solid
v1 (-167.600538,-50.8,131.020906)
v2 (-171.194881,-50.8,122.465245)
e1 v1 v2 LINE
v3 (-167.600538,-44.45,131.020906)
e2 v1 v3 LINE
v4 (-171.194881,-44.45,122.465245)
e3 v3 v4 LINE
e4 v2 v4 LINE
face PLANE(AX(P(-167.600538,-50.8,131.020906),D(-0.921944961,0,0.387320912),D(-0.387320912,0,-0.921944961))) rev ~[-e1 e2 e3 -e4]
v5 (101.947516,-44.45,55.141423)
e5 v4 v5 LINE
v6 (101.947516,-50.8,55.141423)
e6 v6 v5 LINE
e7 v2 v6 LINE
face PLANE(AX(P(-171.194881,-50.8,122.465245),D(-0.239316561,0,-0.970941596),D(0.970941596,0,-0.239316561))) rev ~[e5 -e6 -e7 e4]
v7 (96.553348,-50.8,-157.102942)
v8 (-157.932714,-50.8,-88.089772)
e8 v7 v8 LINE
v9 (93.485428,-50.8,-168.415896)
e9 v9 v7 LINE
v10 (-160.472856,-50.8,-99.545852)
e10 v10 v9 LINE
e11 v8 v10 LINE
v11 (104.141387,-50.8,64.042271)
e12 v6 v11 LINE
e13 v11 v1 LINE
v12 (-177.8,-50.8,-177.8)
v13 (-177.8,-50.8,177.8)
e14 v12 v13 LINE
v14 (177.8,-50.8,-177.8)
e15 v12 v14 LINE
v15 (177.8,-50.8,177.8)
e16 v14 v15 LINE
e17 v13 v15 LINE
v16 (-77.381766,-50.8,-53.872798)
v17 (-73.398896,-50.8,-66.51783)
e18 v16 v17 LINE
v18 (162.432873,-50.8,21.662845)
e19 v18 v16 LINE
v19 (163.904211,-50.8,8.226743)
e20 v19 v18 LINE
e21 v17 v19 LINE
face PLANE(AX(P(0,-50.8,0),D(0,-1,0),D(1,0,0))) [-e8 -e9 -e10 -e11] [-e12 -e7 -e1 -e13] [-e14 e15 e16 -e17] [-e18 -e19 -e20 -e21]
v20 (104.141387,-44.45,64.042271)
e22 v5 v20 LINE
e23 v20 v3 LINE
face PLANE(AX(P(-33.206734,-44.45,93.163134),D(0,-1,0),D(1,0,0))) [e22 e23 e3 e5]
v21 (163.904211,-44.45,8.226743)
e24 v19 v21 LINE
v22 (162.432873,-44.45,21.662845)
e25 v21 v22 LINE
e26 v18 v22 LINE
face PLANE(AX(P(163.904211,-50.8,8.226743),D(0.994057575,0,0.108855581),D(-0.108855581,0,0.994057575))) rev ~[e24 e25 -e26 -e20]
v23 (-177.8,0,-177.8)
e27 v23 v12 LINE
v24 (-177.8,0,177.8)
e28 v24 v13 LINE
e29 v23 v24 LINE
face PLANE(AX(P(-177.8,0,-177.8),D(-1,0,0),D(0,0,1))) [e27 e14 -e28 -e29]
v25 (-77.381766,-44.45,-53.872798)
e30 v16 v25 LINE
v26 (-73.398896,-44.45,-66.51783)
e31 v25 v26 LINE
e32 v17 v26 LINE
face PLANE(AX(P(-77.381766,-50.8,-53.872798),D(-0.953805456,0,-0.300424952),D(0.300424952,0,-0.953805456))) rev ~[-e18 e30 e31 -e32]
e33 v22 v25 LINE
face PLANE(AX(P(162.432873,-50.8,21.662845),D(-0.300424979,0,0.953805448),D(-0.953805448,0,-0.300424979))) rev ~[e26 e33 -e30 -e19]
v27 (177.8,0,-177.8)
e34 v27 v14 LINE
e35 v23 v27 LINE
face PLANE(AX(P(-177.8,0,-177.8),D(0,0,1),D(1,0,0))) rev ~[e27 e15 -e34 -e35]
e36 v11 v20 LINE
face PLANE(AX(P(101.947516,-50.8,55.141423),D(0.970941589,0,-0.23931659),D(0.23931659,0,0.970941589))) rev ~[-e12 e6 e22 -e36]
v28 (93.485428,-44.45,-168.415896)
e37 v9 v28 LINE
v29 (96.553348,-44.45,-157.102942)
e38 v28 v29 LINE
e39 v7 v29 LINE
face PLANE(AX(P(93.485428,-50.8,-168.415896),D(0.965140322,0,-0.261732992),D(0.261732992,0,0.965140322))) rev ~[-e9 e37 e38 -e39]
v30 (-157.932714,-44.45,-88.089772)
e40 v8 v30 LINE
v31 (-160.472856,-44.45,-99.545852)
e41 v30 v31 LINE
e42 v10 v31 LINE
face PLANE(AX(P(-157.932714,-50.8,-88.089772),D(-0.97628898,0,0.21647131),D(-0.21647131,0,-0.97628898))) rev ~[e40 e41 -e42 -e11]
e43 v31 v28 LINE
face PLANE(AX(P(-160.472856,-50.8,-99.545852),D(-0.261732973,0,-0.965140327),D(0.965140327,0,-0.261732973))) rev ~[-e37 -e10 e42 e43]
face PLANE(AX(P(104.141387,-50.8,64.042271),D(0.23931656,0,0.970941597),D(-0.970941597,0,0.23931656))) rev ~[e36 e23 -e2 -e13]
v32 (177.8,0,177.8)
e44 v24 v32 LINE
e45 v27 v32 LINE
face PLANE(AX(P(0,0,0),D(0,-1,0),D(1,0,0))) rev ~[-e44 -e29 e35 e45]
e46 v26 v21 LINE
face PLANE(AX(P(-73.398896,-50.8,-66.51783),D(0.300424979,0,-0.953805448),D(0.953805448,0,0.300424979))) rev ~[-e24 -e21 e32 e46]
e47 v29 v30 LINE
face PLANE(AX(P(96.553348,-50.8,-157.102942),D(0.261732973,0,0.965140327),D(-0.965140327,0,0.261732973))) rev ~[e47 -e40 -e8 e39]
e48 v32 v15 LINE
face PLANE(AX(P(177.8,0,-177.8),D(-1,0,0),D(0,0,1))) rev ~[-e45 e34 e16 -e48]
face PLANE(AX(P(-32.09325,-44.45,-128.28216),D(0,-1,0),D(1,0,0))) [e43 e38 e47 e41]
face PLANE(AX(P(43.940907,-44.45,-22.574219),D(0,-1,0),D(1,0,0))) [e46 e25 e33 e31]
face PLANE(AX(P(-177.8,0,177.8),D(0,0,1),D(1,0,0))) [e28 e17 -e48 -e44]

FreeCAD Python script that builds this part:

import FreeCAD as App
import Part
import Sketcher
Q = App.Units.Quantity

doc = App.newDocument("Part")
body = doc.addObject("PartDesign::Body", "Body")

# Sketch on XZ plane
sketch1 = body.newObject("Sketcher::SketchObject", "Sketch")
sketch1.AttachmentSupport = (doc.getObject("XZ_Plane"), [""])
sketch1.MapMode = "FlatFace"
sketch1.addGeometry([
    Part.LineSegment(App.Vector(-178, 178, 0), App.Vector(-178, -178, 0)),
    Part.LineSegment(App.Vector(-178, -178, 0), App.Vector(178, -178, 0)),
    Part.LineSegment(App.Vector(178, -178, 0), App.Vector(178, 178, 0)),
    Part.LineSegment(App.Vector(178, 178, 0), App.Vector(-178, 178, 0)),
], False)
sketch1.addConstraint([
    Sketcher.Constraint("Coincident", 0, 2, 1, 1),
    Sketcher.Constraint("Coincident", 1, 2, 2, 1),
    Sketcher.Constraint("Coincident", 2, 2, 3, 1),
    Sketcher.Constraint("Coincident", 3, 2, 0, 1),
    Sketcher.Constraint("Vertical", 0),
    Sketcher.Constraint("Horizontal", 1),
    Sketcher.Constraint("Vertical", 2),
    Sketcher.Constraint("Horizontal", 3),
    Sketcher.Constraint("Symmetric", 0, 2, 2, 2, -1, 1),
    Sketcher.Constraint("Equal", 3, 0),
    Sketcher.Constraint("DistanceX", 1, 1, 1, 2, Q("14 in")),
])
pad1 = body.newObject("PartDesign::Pad", "Pad")
pad1.Profile = sketch1
pad1.Length = Q("2 in")

# Sketch on XZ plane
sketch2 = body.newObject("Sketcher::SketchObject", "Sketch001")
sketch2.AttachmentSupport = (doc.getObject("XZ_Plane"), [""])
sketch2.MapMode = "FlatFace"
sketch2.AttachmentOffset = App.Placement(App.Vector(0, 0, 2 * 25.4), App.Rotation())
sketch2.addGeometry([
    Part.LineSegment(App.Vector(-168, 131, 0), App.Vector(-171, 122, 0)),  # 0
    Part.LineSegment(App.Vector(-171, 122, 0), App.Vector(102, 55, 0)),  # 1
    Part.LineSegment(App.Vector(102, 55, 0), App.Vector(104, 64, 0)),  # 2
    Part.LineSegment(App.Vector(104, 64, 0), App.Vector(-168, 131, 0)),  # 3
    Part.LineSegment(App.Vector(-77, -54, 0), App.Vector(-73, -67, 0)),  # 4
    Part.LineSegment(App.Vector(-73, -67, 0), App.Vector(164, 8, 0)),  # 5
    Part.LineSegment(App.Vector(164, 8, 0), App.Vector(162, 22, 0)),  # 6
    Part.LineSegment(App.Vector(162, 22, 0), App.Vector(-77, -54, 0)),  # 7
    Part.LineSegment(App.Vector(97, -157, 0), App.Vector(-158, -88, 0)),  # 8
    Part.LineSegment(App.Vector(-158, -88, 0), App.Vector(-160, -100, 0)),  # 9
    Part.LineSegment(App.Vector(-160, -100, 0), App.Vector(93, -168, 0)),  # 10
    Part.LineSegment(App.Vector(93, -168, 0), App.Vector(97, -157, 0)),  # 11
], False)
sketch2.addConstraint([
    Sketcher.Constraint("Coincident", 0, 2, 1, 1),
    Sketcher.Constraint("Coincident", 1, 2, 2, 1),
    Sketcher.Constraint("Coincident", 2, 2, 3, 1),
    Sketcher.Constraint("Coincident", 3, 2, 0, 1),
    Sketcher.Constraint("Coincident", 4, 2, 5, 1),
    Sketcher.Constraint("Coincident", 5, 2, 6, 1),
    Sketcher.Constraint("Coincident", 6, 2, 7, 1),
    Sketcher.Constraint("Coincident", 7, 2, 4, 1),
    Sketcher.Constraint("Coincident", 8, 2, 9, 1),
    Sketcher.Constraint("Coincident", 9, 2, 10, 1),
    Sketcher.Constraint("Coincident", 10, 2, 11, 1),
    Sketcher.Constraint("Coincident", 11, 2, 8, 1),
    Sketcher.Constraint("Perpendicular", 1, 2),
    Sketcher.Constraint("Perpendicular", 2, 3),
    Sketcher.Constraint("Perpendicular", 4, 5),
    Sketcher.Constraint("Parallel", 5, 7),
    Sketcher.Constraint("Parallel", 8, 10),
    Sketcher.Constraint("Perpendicular", 10, 11),
    Sketcher.Constraint("DistanceY", 7, 2, -1, 1, Q("53.872798 mm")),
    Sketcher.Constraint("DistanceY", 4, 2, 2, 2, Q("130.560101 mm")),
    Sketcher.Constraint("DistanceY", 5, 2, 0, 2, Q("114.238502 mm")),
    Sketcher.Constraint("DistanceY", 10, 2, 7, 2, Q("114.543098 mm")),
    Sketcher.Constraint("Distance", 1, Q("281.317021 mm")),
    Sketcher.Constraint("DistanceX", 0, 2, -1, 1, Q("171.194881 mm")),
    Sketcher.Constraint("DistanceY", -1, 1, 2, 2, Q("64.042271 mm")),
    Sketcher.Constraint("DistanceX", 3, 2, -1, 1, Q("167.600538 mm")),
    Sketcher.Constraint("DistanceX", -1, 1, 5, 2, Q("163.904211 mm")),
    Sketcher.Constraint("DistanceY", 8, 2, -1, 1, Q("88.089772 mm")),
    Sketcher.Constraint("DistanceY", 9, 2, -1, 1, Q("99.545852 mm")),
    Sketcher.Constraint("DistanceX", -1, 1, 10, 2, Q("93.485428 mm")),
    Sketcher.Constraint("DistanceX", -1, 1, 11, 2, Q("96.553348 mm")),
    Sketcher.Constraint("DistanceY", 1, 2, 0, 2, Q("67.323822 mm")),
    Sketcher.Constraint("DistanceX", 1, 2, 2, 2, Q("2.193871 mm")),
    Sketcher.Constraint("DistanceX", 4, 2, 1, 2, Q("175.346412 mm")),
    Sketcher.Constraint("DistanceX", 6, 2, 5, 2, Q("1.471338 mm")),
    Sketcher.Constraint("DistanceX", 8, 2, 4, 2, Q("84.533818 mm")),
])
pocket1 = body.newObject("PartDesign::Pocket", "Pocket")
pocket1.Profile = sketch2
pocket1.Length = Q("0.25 in")

# Sketch on XZ plane
sketch3 = body.newObject("Sketcher::SketchObject", "Sketch002")
sketch3.AttachmentSupport = (doc.getObject("XZ_Plane"), [""])
sketch3.MapMode = "FlatFace"
sketch3.AttachmentOffset = App.Placement(App.Vector(0, 0, 2 * 25.4), App.Rotation())
sketch3.addGeometry([
    Part.LineSegment(App.Vector(-168, 131, 0), App.Vector(-171, 122, 0)),  # 0
    Part.LineSegment(App.Vector(-171, 122, 0), App.Vector(102, 55, 0)),  # 1
    Part.LineSegment(App.Vector(102, 55, 0), App.Vector(104, 64, 0)),  # 2
    Part.LineSegment(App.Vector(104, 64, 0), App.Vector(-168, 131, 0)),  # 3
    Part.LineSegment(App.Vector(-77, -54, 0), App.Vector(-73, -67, 0)),  # 4
    Part.LineSegment(App.Vector(-73, -67, 0), App.Vector(164, 8, 0)),  # 5
    Part.LineSegment(App.Vector(164, 8, 0), App.Vector(162, 22, 0)),  # 6
    Part.LineSegment(App.Vector(162, 22, 0), App.Vector(-77, -54, 0)),  # 7
    Part.LineSegment(App.Vector(97, -157, 0), App.Vector(-158, -88, 0)),  # 8
    Part.LineSegment(App.Vector(-158, -88, 0), App.Vector(-160, -100, 0)),  # 9
    Part.LineSegment(App.Vector(-160, -100, 0), App.Vector(93, -168, 0)),  # 10
    Part.LineSegment(App.Vector(93, -168, 0), App.Vector(97, -157, 0)),  # 11
], False)
sketch3.addConstraint([
    Sketcher.Constraint("Coincident", 0, 2, 1, 1),
    Sketcher.Constraint("Coincident", 1, 2, 2, 1),
    Sketcher.Constraint("Coincident", 2, 2, 3, 1),
    Sketcher.Constraint("Coincident", 3, 2, 0, 1),
    Sketcher.Constraint("Coincident", 4, 2, 5, 1),
    Sketcher.Constraint("Coincident", 5, 2, 6, 1),
    Sketcher.Constraint("Coincident", 6, 2, 7, 1),
    Sketcher.Constraint("Coincident", 7, 2, 4, 1),
    Sketcher.Constraint("Coincident", 8, 2, 9, 1),
    Sketcher.Constraint("Coincident", 9, 2, 10, 1),
    Sketcher.Constraint("Coincident", 10, 2, 11, 1),
    Sketcher.Constraint("Coincident", 11, 2, 8, 1),
    Sketcher.Constraint("Perpendicular", 1, 2),
    Sketcher.Constraint("Perpendicular", 2, 3),
    Sketcher.Constraint("Perpendicular", 4, 5),
    Sketcher.Constraint("Parallel", 5, 7),
    Sketcher.Constraint("Parallel", 8, 10),
    Sketcher.Constraint("Perpendicular", 10, 11),
    Sketcher.Constraint("DistanceY", 7, 2, -1, 1, Q("53.872798 mm")),
    Sketcher.Constraint("DistanceY", 4, 2, 2, 2, Q("130.560101 mm")),
    Sketcher.Constraint("DistanceY", 5, 2, 0, 2, Q("114.238502 mm")),
    Sketcher.Constraint("DistanceY", 10, 2, 7, 2, Q("114.543098 mm")),
    Sketcher.Constraint("Distance", 1, Q("281.317021 mm")),
    Sketcher.Constraint("DistanceX", 0, 2, -1, 1, Q("171.194881 mm")),
    Sketcher.Constraint("DistanceY", -1, 1, 2, 2, Q("64.042271 mm")),
    Sketcher.Constraint("DistanceX", 3, 2, -1, 1, Q("167.600538 mm")),
    Sketcher.Constraint("DistanceX", -1, 1, 5, 2, Q("163.904211 mm")),
    Sketcher.Constraint("DistanceY", 8, 2, -1, 1, Q("88.089772 mm")),
    Sketcher.Constraint("DistanceY", 9, 2, -1, 1, Q("99.545852 mm")),
    Sketcher.Constraint("DistanceX", -1, 1, 10, 2, Q("93.485428 mm")),
    Sketcher.Constraint("DistanceX", -1, 1, 11, 2, Q("96.553348 mm")),
    Sketcher.Constraint("DistanceY", 1, 2, 0, 2, Q("67.323822 mm")),
    Sketcher.Constraint("DistanceX", 1, 2, 2, 2, Q("2.193871 mm")),
    Sketcher.Constraint("DistanceX", 4, 2, 1, 2, Q("175.346412 mm")),
    Sketcher.Constraint("DistanceX", 6, 2, 5, 2, Q("1.471338 mm")),
    Sketcher.Constraint("DistanceX", 8, 2, 4, 2, Q("84.533818 mm")),
])
pocket2 = body.newObject("PartDesign::Pocket", "Pocket001")
pocket2.Profile = sketch3
pocket2.Length = Q("0.25 in")

doc.recompute()
